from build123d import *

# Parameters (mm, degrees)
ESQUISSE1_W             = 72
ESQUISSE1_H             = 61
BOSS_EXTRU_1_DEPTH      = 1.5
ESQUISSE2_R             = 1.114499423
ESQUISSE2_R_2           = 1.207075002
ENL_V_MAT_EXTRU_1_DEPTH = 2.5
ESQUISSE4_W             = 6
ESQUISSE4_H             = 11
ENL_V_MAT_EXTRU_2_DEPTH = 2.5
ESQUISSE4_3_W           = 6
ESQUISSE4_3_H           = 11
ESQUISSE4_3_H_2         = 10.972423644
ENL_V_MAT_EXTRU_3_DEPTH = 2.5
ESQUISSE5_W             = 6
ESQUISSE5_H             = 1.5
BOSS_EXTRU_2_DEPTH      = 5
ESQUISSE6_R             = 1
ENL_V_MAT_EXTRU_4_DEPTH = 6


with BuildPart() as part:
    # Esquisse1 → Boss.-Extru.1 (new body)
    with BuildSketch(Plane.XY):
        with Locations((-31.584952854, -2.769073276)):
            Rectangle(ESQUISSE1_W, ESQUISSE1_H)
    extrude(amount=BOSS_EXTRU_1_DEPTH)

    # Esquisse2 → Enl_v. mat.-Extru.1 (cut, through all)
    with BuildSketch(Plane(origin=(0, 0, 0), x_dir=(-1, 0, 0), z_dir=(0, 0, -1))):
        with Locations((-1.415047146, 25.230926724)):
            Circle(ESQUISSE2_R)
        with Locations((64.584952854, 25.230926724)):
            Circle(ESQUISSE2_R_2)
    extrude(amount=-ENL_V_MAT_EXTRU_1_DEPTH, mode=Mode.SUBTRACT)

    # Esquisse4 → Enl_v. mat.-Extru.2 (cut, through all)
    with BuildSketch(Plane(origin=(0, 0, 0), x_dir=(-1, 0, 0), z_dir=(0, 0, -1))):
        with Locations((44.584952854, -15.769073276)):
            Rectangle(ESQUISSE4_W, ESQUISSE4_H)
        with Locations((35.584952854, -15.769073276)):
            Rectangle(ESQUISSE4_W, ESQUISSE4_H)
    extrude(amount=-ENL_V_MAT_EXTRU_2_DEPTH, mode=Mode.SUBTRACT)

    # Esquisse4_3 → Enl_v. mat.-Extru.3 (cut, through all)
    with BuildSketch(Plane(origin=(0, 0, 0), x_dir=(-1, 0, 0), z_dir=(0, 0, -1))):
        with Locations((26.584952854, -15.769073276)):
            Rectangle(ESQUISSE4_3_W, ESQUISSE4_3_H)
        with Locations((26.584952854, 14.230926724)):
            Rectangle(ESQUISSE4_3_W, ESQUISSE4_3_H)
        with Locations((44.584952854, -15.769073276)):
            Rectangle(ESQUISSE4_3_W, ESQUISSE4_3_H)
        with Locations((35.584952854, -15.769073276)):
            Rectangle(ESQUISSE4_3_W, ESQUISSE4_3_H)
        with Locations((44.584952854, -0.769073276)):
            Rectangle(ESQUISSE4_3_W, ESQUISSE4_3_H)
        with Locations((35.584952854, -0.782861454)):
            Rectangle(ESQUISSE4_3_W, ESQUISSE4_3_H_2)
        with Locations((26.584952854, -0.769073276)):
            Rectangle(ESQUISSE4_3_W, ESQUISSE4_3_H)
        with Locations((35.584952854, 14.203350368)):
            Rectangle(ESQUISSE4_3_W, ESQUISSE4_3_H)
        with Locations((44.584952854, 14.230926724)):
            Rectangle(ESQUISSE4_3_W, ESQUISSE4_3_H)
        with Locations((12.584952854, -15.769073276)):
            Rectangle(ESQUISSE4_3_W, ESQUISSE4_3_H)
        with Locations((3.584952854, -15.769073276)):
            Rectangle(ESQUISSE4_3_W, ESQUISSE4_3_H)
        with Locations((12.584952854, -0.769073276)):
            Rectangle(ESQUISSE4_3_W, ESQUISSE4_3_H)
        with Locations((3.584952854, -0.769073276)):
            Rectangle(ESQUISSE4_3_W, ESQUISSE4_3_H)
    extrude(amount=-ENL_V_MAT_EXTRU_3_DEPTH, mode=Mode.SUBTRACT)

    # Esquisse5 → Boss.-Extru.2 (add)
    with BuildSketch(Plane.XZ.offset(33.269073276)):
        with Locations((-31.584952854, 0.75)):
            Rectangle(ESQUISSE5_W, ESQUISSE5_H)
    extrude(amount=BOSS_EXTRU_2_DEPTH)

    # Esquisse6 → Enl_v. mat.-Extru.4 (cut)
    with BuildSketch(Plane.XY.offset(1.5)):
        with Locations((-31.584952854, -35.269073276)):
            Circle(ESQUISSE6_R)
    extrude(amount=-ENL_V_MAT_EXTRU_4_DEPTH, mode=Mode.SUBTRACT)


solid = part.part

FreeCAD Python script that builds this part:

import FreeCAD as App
import Part
import Sketcher


def add_polygon(sketch, points):
    """Adds a closed chain of lines whose ends are joined by coincident constraints."""
    first, n = sketch.GeometryCount, len(points)
    for a, b in zip(points, points[1:] + points[:1]):
        sketch.addGeometry(Part.LineSegment(App.Vector(*a, 0), App.Vector(*b, 0)), False)
    for i in range(n):
        sketch.addConstraint(Sketcher.Constraint("Coincident", first + i, 2, first + (i + 1) % n, 1))

doc = App.newDocument("Part")
params = doc.addObject("Spreadsheet::Sheet", "Params")
for row, (alias, value) in enumerate([
    ("sketch1_width", "72 mm"),
    ("sketch1_height", "61 mm"),
    ("pad1_length", "1.5 mm"),
    ("sketch3_width", "6 mm"),
    ("sketch3_height", "11 mm"),
    ("sketch4_width", "6 mm"),
    ("sketch4_height", "11 mm"),
    ("sketch5_width", "6 mm"),
    ("sketch5_height", "1.5 mm"),
    ("pad2_length", "5 mm"),
    ("sketch6_diameter", "2 mm"),
    ("pocket4_length", "6 mm"),
], start=1):
    params.set(f"A{row}", alias)
    params.set(f"B{row}", "=" + value)
    params.setAlias(f"B{row}", alias)

body = doc.addObject("PartDesign::Body", "Body")

# Sketch on XY plane
sketch1 = doc.addObject("Sketcher::SketchObject", "Sketch")
body.addObject(sketch1)
sketch1.AttachmentSupport = (doc.XY_Plane, [""])
sketch1.MapMode = "FlatFace"
add_polygon(sketch1, [(-68, 28), (-68, -33), (4, -33), (4, 28)])  # lines 0-3
sketch1.addConstraint([
    Sketcher.Constraint("Vertical", 0),
    Sketcher.Constraint("Horizontal", 1),
    Sketcher.Constraint("Vertical", 2),
    Sketcher.Constraint("Horizontal", 3),
    Sketcher.Constraint("DistanceX", 1, 1, 1, 2, 72.0),
    Sketcher.Constraint("DistanceY", 0, 2, 0, 1, 61.0),
    Sketcher.Constraint("DistanceX", 0, 2, -1, 1, 67.584953),
    Sketcher.Constraint("DistanceY", 0, 2, -1, 1, 33.269073),
])
sketch1.setExpression("Constraints[8]", "Params.sketch1_width")
sketch1.setExpression("Constraints[9]", "Params.sketch1_height")
pad1 = doc.addObject("PartDesign::Pad", "Pad")
body.addObject(pad1)
pad1.Profile = sketch1
pad1.setExpression("Length", "Params.pad1_length")

# Sketch on XY plane
sketch2 = doc.addObject("Sketcher::SketchObject", "Sketch001")
body.addObject(sketch2)
sketch2.AttachmentSupport = (doc.XY_Plane, [""])
sketch2.MapMode = "FlatFace"
sketch2.addGeometry([
    Part.Circle(App.Vector(1.4, 25.2, 0), App.Vector(0, 0, 1), 1.1),
    Part.Circle(App.Vector(-64.6, 25.2, 0), App.Vector(0, 0, 1), 1.2),
], False)
sketch2.addConstraint([
    Sketcher.Constraint("Horizontal", 0, 3, 1, 3),
    Sketcher.Constraint("Diameter", 0, 2.228999),
    Sketcher.Constraint("DistanceX", 1, 3, 0, 3, 66.0),
    Sketcher.Constraint("Diameter", 1, 2.41415),
    Sketcher.Constraint("DistanceX", -1, 1, 0, 3, 1.415047),
    Sketcher.Constraint("DistanceY", -1, 1, 0, 3, 25.230927),
])
pocket1 = doc.addObject("PartDesign::Pocket", "Pocket")
body.addObject(pocket1)
pocket1.Profile = sketch2
pocket1.Type = "ThroughAll"
pocket1.Reversed = True

# Sketch on XY plane
sketch3 = doc.addObject("Sketcher::SketchObject", "Sketch002")
body.addObject(sketch3)
sketch3.AttachmentSupport = (doc.XY_Plane, [""])
sketch3.MapMode = "FlatFace"
add_polygon(sketch3, [(-42, -10), (-42, -21), (-48, -21), (-48, -10)])  # lines 0-3
add_polygon(sketch3, [(-33, -10), (-33, -21), (-39, -21), (-39, -10)])  # lines 4-7
sketch3.addConstraint([
    Sketcher.Constraint("Vertical", 0),
    Sketcher.Constraint("Horizontal", 1),
    Sketcher.Constraint("Vertical", 2),
    Sketcher.Constraint("Horizontal", 3),
    Sketcher.Constraint("Vertical", 4),
    Sketcher.Constraint("Horizontal", 5),
    Sketcher.Constraint("Vertical", 6),
    Sketcher.Constraint("Horizontal", 7),
    Sketcher.Constraint("Horizontal", 1, 2, 4, 2),
    Sketcher.Constraint("Horizontal", 3, 2, 6, 2),
    Sketcher.Constraint("Equal", 3, 5),
    Sketcher.Constraint("DistanceX", 1, 2, 1, 1, 6.0),
    Sketcher.Constraint("DistanceY", 0, 2, 0, 1, 11.0),
    Sketcher.Constraint("DistanceX", 0, 2, 4, 2, 9.0),
    Sketcher.Constraint("DistanceX", 0, 2, -1, 1, 41.584953),
    Sketcher.Constraint("DistanceY", 0, 2, -1, 1, 21.269073),
])
sketch3.setExpression("Constraints[19]", "Params.sketch3_width")
sketch3.setExpression("Constraints[20]", "Params.sketch3_height")
pocket2 = doc.addObject("PartDesign::Pocket", "Pocket001")
body.addObject(pocket2)
pocket2.Profile = sketch3
pocket2.Type = "ThroughAll"
pocket2.Reversed = True

# Sketch on XY plane
sketch4 = doc.addObject("Sketcher::SketchObject", "Sketch003")
body.addObject(sketch4)
sketch4.AttachmentSupport = (doc.XY_Plane, [""])
sketch4.MapMode = "FlatFace"
add_polygon(sketch4, [(-24, -10), (-24, -21), (-30, -21), (-30, -10)])  # lines 0-3
add_polygon(sketch4, [(-24, 20), (-24, 9), (-30, 9), (-30, 20)])  # lines 4-7
add_polygon(sketch4, [(-42, -10), (-42, -21), (-48, -21), (-48, -10)])  # lines 8-11
add_polygon(sketch4, [(-33, -10), (-33, -21), (-39, -21), (-39, -10)])  # lines 12-15
add_polygon(sketch4, [(-42, 5), (-42, -6), (-48, -6), (-48, 5)])  # lines 16-19
add_polygon(sketch4, [(-33, 5), (-33, -6), (-39, -6), (-39, 5)])  # lines 20-23
add_polygon(sketch4, [(-24, 5), (-24, -6), (-30, -6), (-30, 5)])  # lines 24-27
add_polygon(sketch4, [(-33, 20), (-33, 9), (-39, 9), (-39, 20)])  # lines 28-31
add_polygon(sketch4, [(-42, 20), (-42, 9), (-48, 9), (-48, 20)])  # lines 32-35
add_polygon(sketch4, [(-10, -10), (-10, -21), (-16, -21), (-16, -10)])  # lines 36-39
add_polygon(sketch4, [(-1, -10), (-1, -21), (-7, -21), (-7, -10)])  # lines 40-43
add_polygon(sketch4, [(-10, 5), (-10, -6), (-16, -6), (-16, 5)])  # lines 44-47
add_polygon(sketch4, [(-1, 5), (-1, -6), (-7, -6), (-7, 5)])  # lines 48-51
sketch4.addConstraint([
    Sketcher.Constraint("Vertical", 0),
    Sketcher.Constraint("Horizontal", 1),
    Sketcher.Constraint("Vertical", 2),
    Sketcher.Constraint("Horizontal", 3),
    Sketcher.Constraint("Vertical", 4),
    Sketcher.Constraint("Horizontal", 5),
    Sketcher.Constraint("Vertical", 6),
    Sketcher.Constraint("Horizontal", 7),
    Sketcher.Constraint("Vertical", 8),
    Sketcher.Constraint("Horizontal", 9),
    Sketcher.Constraint("Vertical", 10),
    Sketcher.Constraint("Horizontal", 11),
    Sketcher.Constraint("Vertical", 12),
    Sketcher.Constraint("Horizontal", 13),
    Sketcher.Constraint("Vertical", 14),
    Sketcher.Constraint("Horizontal", 15),
    Sketcher.Constraint("Vertical", 16),
    Sketcher.Constraint("Horizontal", 17),
    Sketcher.Constraint("Vertical", 18),
    Sketcher.Constraint("Horizontal", 19),
    Sketcher.Constraint("Vertical", 20),
    Sketcher.Constraint("Horizontal", 21),
    Sketcher.Constraint("Vertical", 22),
    Sketcher.Constraint("Horizontal", 23),
    Sketcher.Constraint("Vertical", 24),
    Sketcher.Constraint("Horizontal", 25),
    Sketcher.Constraint("Vertical", 26),
    Sketcher.Constraint("Horizontal", 27),
    Sketcher.Constraint("Vertical", 28),
    Sketcher.Constraint("Horizontal", 29),
    Sketcher.Constraint("Vertical", 30),
    Sketcher.Constraint("Horizontal", 31),
    Sketcher.Constraint("Vertical", 32),
    Sketcher.Constraint("Horizontal", 33),
    Sketcher.Constraint("Vertical", 34),
    Sketcher.Constraint("Horizontal", 35),
    Sketcher.Constraint("Vertical", 36),
    Sketcher.Constraint("Horizontal", 37),
    Sketcher.Constraint("Vertical", 38),
    Sketcher.Constraint("Horizontal", 39),
    Sketcher.Constraint("Vertical", 40),
    Sketcher.Constraint("Horizontal", 41),
    Sketcher.Constraint("Vertical", 42),
    Sketcher.Constraint("Horizontal", 43),
    Sketcher.Constraint("Vertical", 44),
    Sketcher.Constraint("Horizontal", 45),
    Sketcher.Constraint("Vertical", 46),
    Sketcher.Constraint("Horizontal", 47),
    Sketcher.Constraint("Vertical", 48),
    Sketcher.Constraint("Horizontal", 49),
    Sketcher.Constraint("Vertical", 50),
    Sketcher.Constraint("Horizontal", 51),
    Sketcher.Constraint("Horizontal", 1, 2, 8, 2),
    Sketcher.Constraint("Horizontal", 3, 2, 10, 2),
    Sketcher.Constraint("Horizontal", 9, 2, 12, 2),
    Sketcher.Constraint("Horizontal", 11, 2, 14, 2),
    Sketcher.Constraint("Horizontal", 17, 2, 20, 2),
    Sketcher.Constraint("Horizontal", 21, 2, 24, 2),
    Sketcher.Constraint("Horizontal", 19, 2, 26, 2),
    Sketcher.Constraint("Horizontal", 5, 2, 32, 2),
    Sketcher.Constraint("Horizontal", 7, 2, 34, 2),
    Sketcher.Constraint("Horizontal", 13, 2, 36, 2),
    Sketcher.Constraint("Horizontal", 15, 2, 38, 2),
    Sketcher.Constraint("Horizontal", 37, 2, 40, 2),
    Sketcher.Constraint("Horizontal", 39, 2, 42, 2),
    Sketcher.Constraint("Horizontal", 25, 2, 44, 2),
    Sketcher.Constraint("Horizontal", 27, 2, 46, 2),
    Sketcher.Constraint("Horizontal", 45, 2, 48, 2),
    Sketcher.Constraint("Horizontal", 47, 2, 50, 2),
    Sketcher.Constraint("Vertical", 3, 2, 4, 2),
    Sketcher.Constraint("Vertical", 2, 2, 5, 2),
    Sketcher.Constraint("Vertical", 11, 2, 16, 2),
    Sketcher.Constraint("Vertical", 10, 2, 17, 2),
    Sketcher.Constraint("Vertical", 15, 2, 20, 2),
    Sketcher.Constraint("Vertical", 14, 2, 21, 2),
    Sketcher.Constraint("Vertical", 7, 2, 24, 2),
    Sketcher.Constraint("Vertical", 6, 2, 25, 2),
    Sketcher.Constraint("Vertical", 23, 2, 28, 2),
    Sketcher.Constraint("Vertical", 22, 2, 29, 2),
    Sketcher.Constraint("Vertical", 19, 2, 32, 2),
    Sketcher.Constraint("Vertical", 18, 2, 33, 2),
    Sketcher.Constraint("Vertical", 39, 2, 44, 2),
    Sketcher.Constraint("Vertical", 38, 2, 45, 2),
    Sketcher.Constraint("Vertical", 43, 2, 48, 2),
    Sketcher.Constraint("Vertical", 42, 2, 49, 2),
    Sketcher.Constraint("Equal", 7, 9),
    Sketcher.Constraint("Equal", 11, 13),
    Sketcher.Constraint("Equal", 35, 37),
    Sketcher.Constraint("Equal", 39, 41),
    Sketcher.Constraint("Equal", 2, 4),
    Sketcher.Constraint("Equal", 14, 16),
    Sketcher.Constraint("Equal", 26, 28),
    Sketcher.Constraint("DistanceX", 1, 2, 1, 1, 6.0),
    Sketcher.Constraint("DistanceY", 0, 2, 0, 1, 11.0),
    Sketcher.Constraint("DistanceY", 3, 2, 4, 2, 19.0),
    Sketcher.Constraint("DistanceX", 8, 2, 1, 2, 12.0),
    Sketcher.Constraint("DistanceX", 12, 2, 1, 2, 3.0),
    Sketcher.Constraint("DistanceY", 11, 2, 16, 2, 4.0),
    Sketcher.Constraint("DistanceY", 23, 2, 28, 2, 4.0),
    Sketcher.Constraint("DistanceX", 0, 2, 36, 2, 14.0),
    Sketcher.Constraint("DistanceX", 36, 2, 40, 2, 9.0),
    Sketcher.Constraint("DistanceY", 20, 2, 20, 1, 10.972424),
    Sketcher.Constraint("DistanceY", -1, 1, 22, 2, 4.70335),
    Sketcher.Constraint("DistanceX", 0, 2, -1, 1, 23.584953),
])
sketch4.setExpression("Constraints[144]", "Params.sketch4_width")
sketch4.setExpression("Constraints[145]", "Params.sketch4_height")
pocket3 = doc.addObject("PartDesign::Pocket", "Pocket002")
body.addObject(pocket3)
pocket3.Profile = sketch4
pocket3.Type = "ThroughAll"
pocket3.Reversed = True

# Sketch on XZ plane
sketch5 = doc.addObject("Sketcher::SketchObject", "Sketch004")
body.addObject(sketch5)
sketch5.AttachmentSupport = (doc.XZ_Plane, [""])
sketch5.MapMode = "FlatFace"
sketch5.AttachmentOffset = App.Placement(App.Vector(0, 0, 33.269073), App.Rotation())
add_polygon(sketch5, [(-34.6, 1.5), (-34.6, 0), (-28.6, 0), (-28.6, 1.5)])  # lines 0-3
sketch5.addConstraint([
    Sketcher.Constraint("Vertical", 0),
    Sketcher.Constraint("Horizontal", 1),
    Sketcher.Constraint("Vertical", 2),
    Sketcher.Constraint("Horizontal", 3),
    Sketcher.Constraint("PointOnObject", 0, 2, -1),
    Sketcher.Constraint("DistanceX", 1, 1, 1, 2, 6.0),
    Sketcher.Constraint("DistanceY", 0, 2, 0, 1, 1.5),
    Sketcher.Constraint("DistanceX", 0, 2, -1, 1, 34.584953),
])
sketch5.setExpression("Constraints[9]", "Params.sketch5_width")
sketch5.setExpression("Constraints[10]", "Params.sketch5_height")
pad2 = doc.addObject("PartDesign::Pad", "Pad001")
body.addObject(pad2)
pad2.Profile = sketch5
pad2.setExpression("Length", "Params.pad2_length")

# Sketch on XY plane
sketch6 = doc.addObject("Sketcher::SketchObject", "Sketch005")
body.addObject(sketch6)
sketch6.AttachmentSupport = (doc.XY_Plane, [""])
sketch6.MapMode = "FlatFace"
sketch6.AttachmentOffset = App.Placement(App.Vector(0, 0, 1.5), App.Rotation())
sketch6.addGeometry(Part.Circle(App.Vector(-31.6, -35.3, 0), App.Vector(0, 0, 1), 1), False)
sketch6.addConstraint([
    Sketcher.Constraint("Diameter", 0, 2.0),
    Sketcher.Constraint("DistanceX", 0, 3, -1, 1, 31.584953),
    Sketcher.Constraint("DistanceY", 0, 3, -1, 1, 35.269073),
])
sketch6.setExpression("Constraints[0]", "Params.sketch6_diameter")
pocket4 = doc.addObject("PartDesign::Pocket", "Pocket003")
body.addObject(pocket4)
pocket4.Profile = sketch6
pocket4.setExpression("Length", "Params.pocket4_length")

doc.recompute()
